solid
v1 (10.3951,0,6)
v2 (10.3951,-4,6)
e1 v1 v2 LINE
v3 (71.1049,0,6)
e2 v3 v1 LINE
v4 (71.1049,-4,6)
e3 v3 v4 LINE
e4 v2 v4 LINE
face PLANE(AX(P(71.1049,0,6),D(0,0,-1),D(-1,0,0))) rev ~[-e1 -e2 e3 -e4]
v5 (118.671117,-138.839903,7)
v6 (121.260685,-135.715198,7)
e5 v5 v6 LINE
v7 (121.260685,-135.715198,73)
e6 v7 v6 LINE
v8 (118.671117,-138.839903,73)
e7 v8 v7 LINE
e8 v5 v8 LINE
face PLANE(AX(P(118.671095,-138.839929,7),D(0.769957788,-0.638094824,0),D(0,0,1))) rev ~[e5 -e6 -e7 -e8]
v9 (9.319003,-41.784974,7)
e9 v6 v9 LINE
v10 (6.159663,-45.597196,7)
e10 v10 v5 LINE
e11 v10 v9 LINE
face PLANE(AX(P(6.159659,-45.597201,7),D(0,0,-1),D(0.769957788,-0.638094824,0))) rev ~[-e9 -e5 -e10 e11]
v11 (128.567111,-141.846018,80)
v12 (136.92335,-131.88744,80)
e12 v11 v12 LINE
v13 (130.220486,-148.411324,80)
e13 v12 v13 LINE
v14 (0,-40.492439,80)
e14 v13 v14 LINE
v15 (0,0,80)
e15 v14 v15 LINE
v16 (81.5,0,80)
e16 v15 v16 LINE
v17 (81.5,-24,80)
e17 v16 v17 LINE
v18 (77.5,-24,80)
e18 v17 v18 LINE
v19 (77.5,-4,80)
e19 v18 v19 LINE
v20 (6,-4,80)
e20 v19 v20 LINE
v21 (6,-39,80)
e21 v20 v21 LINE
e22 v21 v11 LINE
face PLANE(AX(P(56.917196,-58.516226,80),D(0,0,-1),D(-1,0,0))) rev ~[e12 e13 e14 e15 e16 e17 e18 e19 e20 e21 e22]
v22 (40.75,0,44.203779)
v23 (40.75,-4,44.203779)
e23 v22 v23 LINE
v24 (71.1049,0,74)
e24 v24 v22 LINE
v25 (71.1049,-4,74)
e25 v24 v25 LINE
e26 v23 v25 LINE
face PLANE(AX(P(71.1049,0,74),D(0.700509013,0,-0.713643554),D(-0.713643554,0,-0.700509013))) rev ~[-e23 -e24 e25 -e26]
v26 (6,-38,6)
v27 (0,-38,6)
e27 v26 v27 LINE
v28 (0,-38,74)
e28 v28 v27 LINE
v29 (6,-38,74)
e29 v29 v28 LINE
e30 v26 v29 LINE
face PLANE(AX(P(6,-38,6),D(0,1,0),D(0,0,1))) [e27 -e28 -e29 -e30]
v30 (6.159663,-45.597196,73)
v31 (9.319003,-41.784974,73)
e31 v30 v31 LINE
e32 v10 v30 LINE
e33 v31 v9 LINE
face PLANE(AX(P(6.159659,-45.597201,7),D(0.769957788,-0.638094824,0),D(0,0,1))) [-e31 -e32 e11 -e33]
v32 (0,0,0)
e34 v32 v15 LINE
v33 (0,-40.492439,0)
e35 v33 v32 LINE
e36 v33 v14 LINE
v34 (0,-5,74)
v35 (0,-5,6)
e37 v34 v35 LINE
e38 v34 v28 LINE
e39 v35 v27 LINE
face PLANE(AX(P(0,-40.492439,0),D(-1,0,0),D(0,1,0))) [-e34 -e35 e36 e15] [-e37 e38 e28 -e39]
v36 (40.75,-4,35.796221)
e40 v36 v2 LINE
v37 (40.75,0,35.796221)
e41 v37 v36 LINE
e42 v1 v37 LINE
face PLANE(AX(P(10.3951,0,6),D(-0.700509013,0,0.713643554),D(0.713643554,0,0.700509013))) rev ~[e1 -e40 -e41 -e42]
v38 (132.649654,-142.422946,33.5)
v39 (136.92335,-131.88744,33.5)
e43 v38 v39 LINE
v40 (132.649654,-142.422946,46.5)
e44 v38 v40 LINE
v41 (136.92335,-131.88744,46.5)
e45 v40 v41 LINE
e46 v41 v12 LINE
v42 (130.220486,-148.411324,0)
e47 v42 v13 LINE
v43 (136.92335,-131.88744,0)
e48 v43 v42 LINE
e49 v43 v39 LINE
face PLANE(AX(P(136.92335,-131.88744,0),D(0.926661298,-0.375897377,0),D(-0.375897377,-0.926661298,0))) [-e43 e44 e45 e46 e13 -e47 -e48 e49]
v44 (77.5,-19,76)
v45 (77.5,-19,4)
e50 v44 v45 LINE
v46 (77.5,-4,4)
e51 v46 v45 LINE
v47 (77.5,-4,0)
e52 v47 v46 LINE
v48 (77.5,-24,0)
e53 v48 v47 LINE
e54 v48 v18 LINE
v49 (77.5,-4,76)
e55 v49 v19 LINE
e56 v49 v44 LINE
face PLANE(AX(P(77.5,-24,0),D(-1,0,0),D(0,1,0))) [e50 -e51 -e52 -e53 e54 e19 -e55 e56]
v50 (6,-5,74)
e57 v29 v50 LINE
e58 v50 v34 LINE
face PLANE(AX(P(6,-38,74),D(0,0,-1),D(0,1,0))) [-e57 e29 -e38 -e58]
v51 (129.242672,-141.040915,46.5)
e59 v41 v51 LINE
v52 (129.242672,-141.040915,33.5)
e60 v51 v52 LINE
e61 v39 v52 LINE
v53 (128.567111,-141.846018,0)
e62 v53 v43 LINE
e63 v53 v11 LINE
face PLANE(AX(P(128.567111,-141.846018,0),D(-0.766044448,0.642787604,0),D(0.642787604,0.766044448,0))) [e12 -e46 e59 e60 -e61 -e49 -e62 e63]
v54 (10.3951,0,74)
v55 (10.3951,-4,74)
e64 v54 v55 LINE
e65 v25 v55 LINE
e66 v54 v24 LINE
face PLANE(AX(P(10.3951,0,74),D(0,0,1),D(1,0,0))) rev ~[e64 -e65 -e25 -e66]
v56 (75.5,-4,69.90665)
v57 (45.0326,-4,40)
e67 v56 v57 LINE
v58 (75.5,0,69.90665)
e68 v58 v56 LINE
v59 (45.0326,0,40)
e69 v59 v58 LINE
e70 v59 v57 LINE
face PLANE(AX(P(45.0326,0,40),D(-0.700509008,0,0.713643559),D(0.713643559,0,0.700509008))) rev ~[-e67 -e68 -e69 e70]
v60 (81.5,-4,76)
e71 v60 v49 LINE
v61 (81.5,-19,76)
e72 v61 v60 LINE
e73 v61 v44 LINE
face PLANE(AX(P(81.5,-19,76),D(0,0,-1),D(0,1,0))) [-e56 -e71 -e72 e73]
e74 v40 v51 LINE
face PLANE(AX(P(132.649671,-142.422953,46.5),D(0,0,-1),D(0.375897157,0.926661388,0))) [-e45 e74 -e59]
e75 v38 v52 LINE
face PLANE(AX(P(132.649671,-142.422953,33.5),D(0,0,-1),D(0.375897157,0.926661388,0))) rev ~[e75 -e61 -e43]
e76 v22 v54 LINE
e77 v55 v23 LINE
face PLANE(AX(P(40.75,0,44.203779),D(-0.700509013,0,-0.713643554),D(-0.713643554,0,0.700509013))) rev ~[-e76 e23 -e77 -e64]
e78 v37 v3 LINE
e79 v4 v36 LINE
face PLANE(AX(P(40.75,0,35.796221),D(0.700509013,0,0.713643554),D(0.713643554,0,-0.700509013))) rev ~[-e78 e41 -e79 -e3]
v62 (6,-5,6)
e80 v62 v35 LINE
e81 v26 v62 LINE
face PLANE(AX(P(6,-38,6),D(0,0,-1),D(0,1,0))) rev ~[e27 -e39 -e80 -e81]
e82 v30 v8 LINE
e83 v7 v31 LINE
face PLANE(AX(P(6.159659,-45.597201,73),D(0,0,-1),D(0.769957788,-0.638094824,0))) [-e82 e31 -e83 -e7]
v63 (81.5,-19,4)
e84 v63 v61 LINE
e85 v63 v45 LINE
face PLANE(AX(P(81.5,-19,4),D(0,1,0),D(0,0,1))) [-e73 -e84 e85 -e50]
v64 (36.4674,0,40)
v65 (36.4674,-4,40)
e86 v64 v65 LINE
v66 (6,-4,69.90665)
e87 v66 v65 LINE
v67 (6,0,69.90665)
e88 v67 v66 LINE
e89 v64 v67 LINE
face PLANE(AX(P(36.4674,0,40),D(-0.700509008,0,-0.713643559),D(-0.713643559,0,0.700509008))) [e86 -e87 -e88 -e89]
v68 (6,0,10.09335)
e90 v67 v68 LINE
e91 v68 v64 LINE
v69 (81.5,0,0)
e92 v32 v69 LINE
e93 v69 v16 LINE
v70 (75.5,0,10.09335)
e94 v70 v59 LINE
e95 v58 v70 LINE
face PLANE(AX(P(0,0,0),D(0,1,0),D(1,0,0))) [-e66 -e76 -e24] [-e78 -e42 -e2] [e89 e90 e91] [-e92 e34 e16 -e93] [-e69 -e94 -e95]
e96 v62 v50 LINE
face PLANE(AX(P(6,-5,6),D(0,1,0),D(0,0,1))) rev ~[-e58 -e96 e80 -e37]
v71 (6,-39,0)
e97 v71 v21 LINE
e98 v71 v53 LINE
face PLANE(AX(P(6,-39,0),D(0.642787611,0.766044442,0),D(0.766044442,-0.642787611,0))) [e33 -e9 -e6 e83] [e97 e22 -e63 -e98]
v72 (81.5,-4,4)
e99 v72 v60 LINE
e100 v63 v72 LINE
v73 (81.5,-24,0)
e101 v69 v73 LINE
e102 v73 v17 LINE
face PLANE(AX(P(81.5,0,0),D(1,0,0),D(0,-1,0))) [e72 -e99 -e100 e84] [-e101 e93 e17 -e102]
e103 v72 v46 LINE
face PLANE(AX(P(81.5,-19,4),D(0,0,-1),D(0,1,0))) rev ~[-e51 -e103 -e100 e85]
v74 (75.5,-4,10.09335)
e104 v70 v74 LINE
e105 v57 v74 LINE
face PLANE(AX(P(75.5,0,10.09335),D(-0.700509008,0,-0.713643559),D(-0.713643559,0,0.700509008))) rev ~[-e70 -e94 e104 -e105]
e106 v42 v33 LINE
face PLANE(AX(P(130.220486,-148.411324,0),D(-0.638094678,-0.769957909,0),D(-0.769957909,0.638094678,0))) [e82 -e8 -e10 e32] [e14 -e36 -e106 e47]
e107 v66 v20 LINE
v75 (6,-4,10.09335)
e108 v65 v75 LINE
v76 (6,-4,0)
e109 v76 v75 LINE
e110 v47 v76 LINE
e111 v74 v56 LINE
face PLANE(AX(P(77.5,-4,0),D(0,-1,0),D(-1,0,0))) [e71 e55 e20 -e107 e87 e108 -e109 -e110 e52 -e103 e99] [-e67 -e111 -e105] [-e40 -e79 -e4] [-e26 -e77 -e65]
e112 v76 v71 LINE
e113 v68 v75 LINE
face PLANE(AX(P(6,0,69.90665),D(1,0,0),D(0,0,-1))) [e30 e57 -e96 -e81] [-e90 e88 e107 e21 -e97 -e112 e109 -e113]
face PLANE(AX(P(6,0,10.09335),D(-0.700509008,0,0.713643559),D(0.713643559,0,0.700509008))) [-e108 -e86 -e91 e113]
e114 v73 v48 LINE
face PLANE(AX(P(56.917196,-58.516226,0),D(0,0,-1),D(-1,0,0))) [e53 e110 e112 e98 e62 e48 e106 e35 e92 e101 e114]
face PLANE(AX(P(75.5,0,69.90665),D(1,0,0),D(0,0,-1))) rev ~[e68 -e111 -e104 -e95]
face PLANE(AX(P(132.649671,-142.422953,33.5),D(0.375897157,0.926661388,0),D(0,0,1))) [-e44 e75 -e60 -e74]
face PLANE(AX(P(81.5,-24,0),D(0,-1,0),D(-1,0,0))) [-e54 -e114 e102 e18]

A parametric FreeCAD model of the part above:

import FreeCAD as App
import Part
import Sketcher
from FreeCAD import Vector
Q = App.Units.Quantity


def add_polygon(sketch, points):
    """Adds a closed chain of lines whose ends are joined by coincident constraints."""
    first, n = sketch.GeometryCount, len(points)
    for a, b in zip(points, points[1:] + points[:1]):
        sketch.addGeometry(Part.LineSegment(App.Vector(*a, 0), App.Vector(*b, 0)), False)
    for i in range(n):
        sketch.addConstraint(Sketcher.Constraint("Coincident", first + i, 2, first + (i + 1) % n, 1))

doc = App.newDocument("Part")
body = doc.addObject("PartDesign::Body", "Body")

# Sketch on XY plane
sketch1 = body.newObject("Sketcher::SketchObject", "Sketch")
sketch1.AttachmentSupport = (doc.getObject("XY_Plane"), [""])
sketch1.MapMode = "FlatFace"
add_polygon(sketch1, [(81.5, 0), (0, 0), (0, -40.5), (130.2, -148.4), (136.9, -131.9), (128.6, -141.8), (6, -39), (6, -4), (77.5, -4), (77.5, -24), (81.5, -24)])  # lines 0-10
sketch1.addConstraint([
    Sketcher.Constraint("Horizontal", 0),
    Sketcher.Constraint("Vertical", 1),
    Sketcher.Constraint("Vertical", 6),
    Sketcher.Constraint("Horizontal", 7),
    Sketcher.Constraint("Vertical", 8),
    Sketcher.Constraint("Horizontal", 9),
    Sketcher.Constraint("Vertical", 10),
    Sketcher.Constraint("Coincident", 0, 2, -1, 1),
    Sketcher.Constraint("Perpendicular", 4, 5),
    Sketcher.Constraint("DistanceX", 9, 1, 9, 2, Q("4 mm")),
    Sketcher.Constraint("DistanceY", 6, 1, 6, 2, Q("35 mm")),
    Sketcher.Constraint("DistanceY", 8, 2, 8, 1, Q("20 mm")),
    Sketcher.Constraint("DistanceY", 10, 1, 10, 2, Q("24 mm")),
    Sketcher.Constraint("Angle", 4, Q("-130 deg")),
    Sketcher.Constraint("Distance", 4, Q("13 mm")),
    Sketcher.Constraint("Distance", 5, Q("160 mm")),
    Sketcher.Constraint("DistanceX", 0, 2, 0, 1, Q("81.5 mm")),
    Sketcher.Constraint("DistanceX", 7, 1, 7, 2, Q("71.5 mm")),
    Sketcher.Constraint("DistanceY", 3, 2, 1, 2, Q("91.395001 mm")),
    Sketcher.Constraint("Distance", 2, Q("169.126759 mm")),
    Sketcher.Constraint("Distance", 3, Q("17.831633 mm")),
])
pad1 = body.newObject("PartDesign::Pad", "Pad")
pad1.Profile = sketch1
pad1.Length = 80

# Sketch on XZ plane
sketch2 = body.newObject("Sketcher::SketchObject", "Sketch001")
sketch2.AttachmentSupport = (doc.getObject("XZ_Plane"), [""])
sketch2.MapMode = "FlatFace"
add_polygon(sketch2, [(41, 36), (71, 6), (10, 6)])  # lines 0-2
add_polygon(sketch2, [(76, 70), (76, 10), (45, 40)])  # lines 3-5
add_polygon(sketch2, [(71, 74), (41, 44), (10, 74)])  # lines 6-8
add_polygon(sketch2, [(6, 10), (6, 70), (36, 40)])  # lines 9-11
sketch2.addConstraint([
    Sketcher.Constraint("Horizontal", 1),
    Sketcher.Constraint("Vertical", 3),
    Sketcher.Constraint("Horizontal", 8),
    Sketcher.Constraint("Vertical", 9),
    Sketcher.Constraint("Parallel", 0, 4),
    Sketcher.Constraint("Parallel", 2, 5),
    Sketcher.Constraint("Parallel", 5, 6),
    Sketcher.Constraint("Parallel", 4, 7),
    Sketcher.Constraint("Parallel", 7, 10),
    Sketcher.Constraint("Parallel", 6, 11),
    Sketcher.Constraint("Horizontal", 5, 2, 9, 2),
    Sketcher.Constraint("Horizontal", 4, 2, 10, 2),
    Sketcher.Constraint("Horizontal", 3, 2, 11, 2),
    Sketcher.Constraint("Vertical", 2, 2, 6, 2),
    Sketcher.Constraint("Vertical", 1, 2, 7, 2),
    Sketcher.Constraint("DistanceY", -1, 1, 0, 2, Q("6 mm")),
    Sketcher.Constraint("DistanceY", -1, 1, 4, 2, Q("40 mm")),
    Sketcher.Constraint("DistanceY", -1, 1, 7, 2, Q("74 mm")),
    Sketcher.Constraint("DistanceX", -1, 1, 9, 2, Q("6 mm")),
    Sketcher.Constraint("DistanceX", -1, 1, 3, 2, Q("75.5 mm")),
    Sketcher.Constraint("DistanceX", -1, 1, 2, 2, Q("40.75 mm")),
    Sketcher.Constraint("DistanceX", 1, 2, 1, 1, Q("60.7098 mm")),
    Sketcher.Constraint("DistanceY", 3, 2, 3, 1, Q("59.8133 mm")),
    Sketcher.Constraint("Distance", 0, Q("42.5351 mm")),
])
pocket1 = body.newObject("PartDesign::Pocket", "Pocket")
pocket1.Profile = sketch2
pocket1.Length = 5
pocket1.Reversed = True

# Sketch on YZ plane
sketch3 = body.newObject("Sketcher::SketchObject", "Sketch002")
sketch3.AttachmentSupport = (doc.getObject("YZ_Plane"), [""])
sketch3.MapMode = "FlatFace"
sketch3.AttachmentOffset = App.Placement(Vector(0, 0, 6), App.Rotation())
add_polygon(sketch3, [(-38, 74), (-38, 6), (-5, 6), (-5, 74)])  # lines 0-3
sketch3.addConstraint([
    Sketcher.Constraint("Vertical", 0),
    Sketcher.Constraint("Horizontal", 1),
    Sketcher.Constraint("Vertical", 2),
    Sketcher.Constraint("Horizontal", 3),
    Sketcher.Constraint("DistanceX", 1, 1, 1, 2, Q("33 mm")),
    Sketcher.Constraint("DistanceY", 0, 2, 0, 1, Q("68 mm")),
    Sketcher.Constraint("DistanceX", 0, 2, -1, 1, Q("38 mm")),
    Sketcher.Constraint("DistanceY", -1, 1, 0, 2, Q("6 mm")),
])
pocket2 = body.newObject("PartDesign::Pocket", "Pocket001")
pocket2.Profile = sketch3
pocket2.Length = 9

# Sketch on an angled plane
sketch4 = body.newObject("Sketcher::SketchObject", "Sketch003")
sketch4.Placement = App.Placement(Vector(-19.89418, -24.005342, 0), App.Rotation(Vector(0.769957788, -0.638094824, 0), Vector(0, 0, 1), Vector(-0.638094824, -0.769957788, 0), "ZXY"))
add_polygon(sketch4, [(34, 73), (34, 7), (180, 7), (180, 73)])  # lines 0-3
sketch4.addConstraint([
    Sketcher.Constraint("Vertical", 0),
    Sketcher.Constraint("Horizontal", 1),
    Sketcher.Constraint("Vertical", 2),
    Sketcher.Constraint("Horizontal", 3),
    Sketcher.Constraint("DistanceY", 0, 2, 0, 1, Q("66 mm")),
    Sketcher.Constraint("DistanceY", -1, 1, 0, 2, Q("7 mm")),
    Sketcher.Constraint("DistanceX", 1, 1, 1, 2, Q("146.126759 mm")),
    Sketcher.Constraint("DistanceX", -1, 1, 0, 2, Q("33.838009 mm")),
])
pocket3 = body.newObject("PartDesign::Pocket", "Pocket002")
pocket3.Profile = sketch4
pocket3.Length = 5

# Sketch on YZ plane
sketch5 = body.newObject("Sketcher::SketchObject", "Sketch004")
sketch5.AttachmentSupport = (doc.getObject("YZ_Plane"), [""])
sketch5.MapMode = "FlatFace"
sketch5.AttachmentOffset = App.Placement(Vector(0, 0, 81.5), App.Rotation())
add_polygon(sketch5, [(-19, 76), (-19, 4), (-4, 4), (-4, 76)])  # lines 0-3
sketch5.addConstraint([
    Sketcher.Constraint("Vertical", 0),
    Sketcher.Constraint("Horizontal", 1),
    Sketcher.Constraint("Vertical", 2),
    Sketcher.Constraint("Horizontal", 3),
    Sketcher.Constraint("DistanceX", 1, 1, 1, 2, Q("15 mm")),
    Sketcher.Constraint("DistanceY", 0, 2, 0, 1, Q("72 mm")),
    Sketcher.Constraint("DistanceX", 0, 2, -1, 1, Q("19 mm")),
    Sketcher.Constraint("DistanceY", -1, 1, 0, 2, Q("4 mm")),
])
pocket4 = body.newObject("PartDesign::Pocket", "Pocket003")
pocket4.Profile = sketch5
pocket4.Length = 5

# Sketch on an angled plane
sketch6 = body.newObject("Sketcher::SketchObject", "Sketch005")
sketch6.Placement = App.Placement(Vector(163.516532, -66.32999, 0), App.Rotation(Vector(0.375897157, 0.926661388, 0), Vector(0, 0, 1.000000001), Vector(0.926661388, -0.375897157, 0), "ZXY"))
add_polygon(sketch6, [(-82, 47), (-82, 34), (-62, 34), (-62, 47)])  # lines 0-3
sketch6.addConstraint([
    Sketcher.Constraint("Vertical", 0),
    Sketcher.Constraint("Horizontal", 1),
    Sketcher.Constraint("Vertical", 2),
    Sketcher.Constraint("Horizontal", 3),
    Sketcher.Constraint("DistanceX", 1, 1, 1, 2, Q("20 mm")),
    Sketcher.Constraint("DistanceY", 0, 2, 0, 1, Q("13 mm")),
    Sketcher.Constraint("DistanceY", -1, 1, 0, 2, Q("33.5 mm")),
    Sketcher.Constraint("DistanceX", 0, 2, -1, 1, Q("82.115176 mm")),
])
pocket5 = body.newObject("PartDesign::Pocket", "Pocket004")
pocket5.Profile = sketch6
pocket5.Length = 5

doc.recompute()
